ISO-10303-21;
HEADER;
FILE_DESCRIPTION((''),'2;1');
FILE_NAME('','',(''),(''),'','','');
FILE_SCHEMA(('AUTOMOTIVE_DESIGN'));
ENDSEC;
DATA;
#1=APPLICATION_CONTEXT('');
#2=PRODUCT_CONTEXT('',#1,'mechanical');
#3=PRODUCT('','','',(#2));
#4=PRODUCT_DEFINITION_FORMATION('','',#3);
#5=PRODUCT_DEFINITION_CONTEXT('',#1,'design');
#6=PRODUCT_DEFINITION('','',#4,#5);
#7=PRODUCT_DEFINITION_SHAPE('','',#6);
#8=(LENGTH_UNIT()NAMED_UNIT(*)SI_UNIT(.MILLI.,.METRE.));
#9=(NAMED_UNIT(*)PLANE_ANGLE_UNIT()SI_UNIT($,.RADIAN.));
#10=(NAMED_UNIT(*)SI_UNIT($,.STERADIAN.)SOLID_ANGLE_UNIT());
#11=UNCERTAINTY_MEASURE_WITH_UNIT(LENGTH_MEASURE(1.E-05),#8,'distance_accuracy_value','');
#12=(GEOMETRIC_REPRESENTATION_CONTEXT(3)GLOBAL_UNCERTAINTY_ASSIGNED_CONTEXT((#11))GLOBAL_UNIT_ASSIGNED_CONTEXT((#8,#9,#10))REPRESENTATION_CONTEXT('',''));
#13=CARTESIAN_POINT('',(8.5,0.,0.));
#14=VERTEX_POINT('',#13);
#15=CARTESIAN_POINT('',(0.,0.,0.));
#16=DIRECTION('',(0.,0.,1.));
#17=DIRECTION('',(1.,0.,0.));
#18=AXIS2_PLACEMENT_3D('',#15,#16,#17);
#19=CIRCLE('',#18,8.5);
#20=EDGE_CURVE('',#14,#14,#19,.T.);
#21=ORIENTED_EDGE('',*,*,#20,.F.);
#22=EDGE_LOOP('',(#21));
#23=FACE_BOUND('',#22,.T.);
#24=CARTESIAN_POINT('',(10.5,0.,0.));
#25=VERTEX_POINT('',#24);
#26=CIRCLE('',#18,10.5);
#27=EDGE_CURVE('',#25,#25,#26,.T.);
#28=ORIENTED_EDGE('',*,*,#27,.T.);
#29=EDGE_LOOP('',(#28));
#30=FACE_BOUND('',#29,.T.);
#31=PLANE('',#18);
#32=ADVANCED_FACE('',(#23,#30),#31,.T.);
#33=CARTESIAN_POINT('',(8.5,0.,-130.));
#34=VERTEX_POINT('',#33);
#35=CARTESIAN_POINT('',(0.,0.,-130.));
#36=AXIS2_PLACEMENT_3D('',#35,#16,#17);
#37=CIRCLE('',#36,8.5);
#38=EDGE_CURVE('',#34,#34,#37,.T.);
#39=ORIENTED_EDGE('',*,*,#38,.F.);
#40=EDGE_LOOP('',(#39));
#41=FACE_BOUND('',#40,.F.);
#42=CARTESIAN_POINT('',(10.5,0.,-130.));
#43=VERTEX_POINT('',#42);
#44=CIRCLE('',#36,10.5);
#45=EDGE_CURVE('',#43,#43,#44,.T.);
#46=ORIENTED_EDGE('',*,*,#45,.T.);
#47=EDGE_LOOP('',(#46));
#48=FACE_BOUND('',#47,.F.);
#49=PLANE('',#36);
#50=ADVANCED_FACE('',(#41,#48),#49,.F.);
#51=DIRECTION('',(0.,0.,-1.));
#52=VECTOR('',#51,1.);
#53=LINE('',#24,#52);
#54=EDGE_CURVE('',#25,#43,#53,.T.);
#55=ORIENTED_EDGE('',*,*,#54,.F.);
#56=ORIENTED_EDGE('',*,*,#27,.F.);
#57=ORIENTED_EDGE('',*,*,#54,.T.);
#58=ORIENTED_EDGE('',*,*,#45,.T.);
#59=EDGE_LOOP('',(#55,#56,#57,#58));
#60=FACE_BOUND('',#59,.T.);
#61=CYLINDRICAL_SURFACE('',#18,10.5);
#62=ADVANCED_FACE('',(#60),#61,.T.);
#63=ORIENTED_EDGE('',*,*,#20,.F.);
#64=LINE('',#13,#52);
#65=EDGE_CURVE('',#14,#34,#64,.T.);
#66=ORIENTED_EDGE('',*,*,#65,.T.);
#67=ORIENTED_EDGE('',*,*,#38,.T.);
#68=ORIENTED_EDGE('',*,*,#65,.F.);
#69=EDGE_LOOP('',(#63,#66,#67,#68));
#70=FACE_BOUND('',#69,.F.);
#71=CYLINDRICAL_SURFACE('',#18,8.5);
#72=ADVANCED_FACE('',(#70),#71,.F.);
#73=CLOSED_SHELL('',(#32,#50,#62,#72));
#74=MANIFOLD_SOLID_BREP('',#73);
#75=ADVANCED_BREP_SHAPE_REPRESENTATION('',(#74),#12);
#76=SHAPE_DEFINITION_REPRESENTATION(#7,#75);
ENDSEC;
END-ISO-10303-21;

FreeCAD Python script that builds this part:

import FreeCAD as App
import Part
import Sketcher

V = App.Vector

doc = App.newDocument("Part")
params = doc.addObject("Spreadsheet::Sheet", "Params")
for row, (alias, value) in enumerate([
    ("sketch1_diameter", "21 mm"),
    ("sketch1_diameter2", "17 mm"),
    ("pad1_length", "130 mm"),
], start=1):
    params.set(f"A{row}", alias)
    params.set(f"B{row}", "=" + value)
    params.setAlias(f"B{row}", alias)

body = doc.addObject("PartDesign::Body", "Body")

# Sketch on XY plane
sketch1 = body.newObject("Sketcher::SketchObject", "Sketch")
sketch1.AttachmentSupport = (doc.getObject("XY_Plane"), [""])
sketch1.MapMode = "FlatFace"
sketch1.addGeometry([
    Part.Circle(V(0, 0, 0), V(0, 0, 1), 10),
    Part.Circle(V(0, 0, 0), V(0, 0, 1), 8),
], False)
sketch1.addConstraint([
    Sketcher.Constraint("Coincident", 0, 3, -1, 1),
    Sketcher.Constraint("Coincident", 1, 3, -1, 1),
    Sketcher.Constraint("Diameter", 0, 21.0),
    Sketcher.Constraint("Diameter", 1, 17.0),
])
sketch1.setExpression("Constraints[2]", "Params.sketch1_diameter")
sketch1.setExpression("Constraints[3]", "Params.sketch1_diameter2")
pad1 = body.newObject("PartDesign::Pad", "Pad")
pad1.Profile = sketch1
pad1.setExpression("Length", "Params.pad1_length")
pad1.Reversed = True

doc.recompute()
